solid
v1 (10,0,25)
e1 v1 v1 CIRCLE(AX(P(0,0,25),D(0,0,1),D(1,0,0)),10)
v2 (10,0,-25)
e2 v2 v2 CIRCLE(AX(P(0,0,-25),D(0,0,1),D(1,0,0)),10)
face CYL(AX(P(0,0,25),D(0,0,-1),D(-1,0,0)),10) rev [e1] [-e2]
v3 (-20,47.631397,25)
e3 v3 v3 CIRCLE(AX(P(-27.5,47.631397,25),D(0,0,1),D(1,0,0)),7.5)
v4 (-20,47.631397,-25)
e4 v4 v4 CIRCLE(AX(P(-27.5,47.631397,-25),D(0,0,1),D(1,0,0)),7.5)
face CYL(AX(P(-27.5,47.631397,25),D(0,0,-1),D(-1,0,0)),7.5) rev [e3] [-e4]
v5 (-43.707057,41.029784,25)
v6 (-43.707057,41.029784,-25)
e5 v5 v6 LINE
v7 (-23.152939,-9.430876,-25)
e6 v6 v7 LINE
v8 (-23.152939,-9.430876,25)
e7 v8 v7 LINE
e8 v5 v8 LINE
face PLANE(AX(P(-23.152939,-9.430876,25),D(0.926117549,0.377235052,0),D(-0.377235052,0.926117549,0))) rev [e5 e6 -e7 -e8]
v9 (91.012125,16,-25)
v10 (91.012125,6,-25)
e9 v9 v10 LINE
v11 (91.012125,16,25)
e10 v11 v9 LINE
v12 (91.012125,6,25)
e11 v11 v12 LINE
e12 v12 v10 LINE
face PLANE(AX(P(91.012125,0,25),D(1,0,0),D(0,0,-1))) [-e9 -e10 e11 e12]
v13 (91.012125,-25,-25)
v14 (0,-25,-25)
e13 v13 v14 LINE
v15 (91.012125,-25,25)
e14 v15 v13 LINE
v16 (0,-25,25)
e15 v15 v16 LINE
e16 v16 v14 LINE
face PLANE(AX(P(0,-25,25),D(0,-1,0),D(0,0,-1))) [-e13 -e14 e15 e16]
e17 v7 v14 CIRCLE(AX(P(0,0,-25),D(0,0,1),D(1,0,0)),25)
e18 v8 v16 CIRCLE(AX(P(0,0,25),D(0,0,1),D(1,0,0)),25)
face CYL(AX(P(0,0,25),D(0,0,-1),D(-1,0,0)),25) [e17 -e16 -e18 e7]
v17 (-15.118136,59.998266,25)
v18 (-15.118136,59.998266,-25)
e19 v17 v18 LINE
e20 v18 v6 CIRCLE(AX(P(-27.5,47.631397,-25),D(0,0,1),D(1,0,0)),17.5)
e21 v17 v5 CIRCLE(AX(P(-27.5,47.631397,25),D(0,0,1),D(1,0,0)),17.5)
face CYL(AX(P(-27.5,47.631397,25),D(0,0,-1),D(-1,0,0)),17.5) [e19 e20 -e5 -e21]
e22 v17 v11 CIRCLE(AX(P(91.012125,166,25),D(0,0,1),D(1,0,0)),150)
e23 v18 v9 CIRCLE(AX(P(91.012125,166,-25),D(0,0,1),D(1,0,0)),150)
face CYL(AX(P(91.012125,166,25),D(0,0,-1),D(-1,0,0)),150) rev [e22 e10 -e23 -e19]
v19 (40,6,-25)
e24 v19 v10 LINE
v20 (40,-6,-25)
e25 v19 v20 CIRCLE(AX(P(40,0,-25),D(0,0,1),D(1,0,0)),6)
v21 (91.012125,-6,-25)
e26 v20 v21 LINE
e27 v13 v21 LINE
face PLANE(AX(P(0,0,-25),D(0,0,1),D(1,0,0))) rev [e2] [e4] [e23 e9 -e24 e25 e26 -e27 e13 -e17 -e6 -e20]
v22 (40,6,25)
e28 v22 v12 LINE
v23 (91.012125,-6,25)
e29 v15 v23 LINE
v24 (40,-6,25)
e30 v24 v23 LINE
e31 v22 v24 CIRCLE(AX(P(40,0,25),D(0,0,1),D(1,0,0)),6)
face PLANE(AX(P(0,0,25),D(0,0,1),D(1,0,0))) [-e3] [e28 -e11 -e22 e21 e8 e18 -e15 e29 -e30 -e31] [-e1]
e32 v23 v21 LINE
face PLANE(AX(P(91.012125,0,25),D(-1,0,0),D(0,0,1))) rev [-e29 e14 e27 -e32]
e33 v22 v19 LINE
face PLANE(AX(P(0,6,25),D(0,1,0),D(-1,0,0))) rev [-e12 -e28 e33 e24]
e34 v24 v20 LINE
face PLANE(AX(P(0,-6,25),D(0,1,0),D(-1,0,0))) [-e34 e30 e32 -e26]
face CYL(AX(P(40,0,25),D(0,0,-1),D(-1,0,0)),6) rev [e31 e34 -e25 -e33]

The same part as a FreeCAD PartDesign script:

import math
import FreeCAD as App
import Part
import Sketcher
from FreeCAD import Vector
Q = App.Units.Quantity

doc = App.newDocument("Part")
body = doc.addObject("PartDesign::Body", "Body")

# Sketch on XY plane
sketch1 = body.newObject("Sketcher::SketchObject", "Sketch")
sketch1.AttachmentSupport = (doc.getObject("XY_Plane"), [""])
sketch1.MapMode = "FlatFace"
sketch1.addGeometry([
    Part.ArcOfCircle(Part.Circle(Vector(40, 0, 0), Vector(0, 0, 1), 6), math.radians(90), math.radians(270)),  # 0
    Part.LineSegment(Vector(40, 6, 0), Vector(91, 6, 0)),  # 1
    Part.LineSegment(Vector(91, 6, 0), Vector(91, 16, 0)),  # 2
    Part.ArcOfCircle(Part.Circle(Vector(91, 166, 0), Vector(0, 0, 1), 150), math.radians(-135), math.radians(-90)),  # 3
    Part.ArcOfCircle(Part.Circle(Vector(-28, 48, 0), Vector(0, 0, 1), 18), math.radians(45), math.radians(202)),  # 4
    Part.LineSegment(Vector(-44, 41, 0), Vector(-23, -9, 0)),  # 5
    Part.ArcOfCircle(Part.Circle(Vector(0, 0, 0), Vector(0, 0, 1), 25), math.radians(-158), math.radians(-90)),  # 6
    Part.LineSegment(Vector(0, -25, 0), Vector(91, -25, 0)),  # 7
    Part.LineSegment(Vector(91, -25, 0), Vector(91, -6, 0)),  # 8
    Part.LineSegment(Vector(91, -6, 0), Vector(40, -6, 0)),  # 9
    Part.Circle(Vector(0, 0, 0), Vector(0, 0, 1), 10),  # 10
    Part.Circle(Vector(-28, 48, 0), Vector(0, 0, 1), 8),  # 11
], False)
sketch1.addConstraint([
    Sketcher.Constraint("Tangent", 0, 1, 1, 1),
    Sketcher.Constraint("Coincident", 1, 2, 2, 1),
    Sketcher.Constraint("Coincident", 2, 2, 3, 2),
    Sketcher.Constraint("Tangent", 3, 1, 4, 1),
    Sketcher.Constraint("Tangent", 4, 2, 5, 1),
    Sketcher.Constraint("Tangent", 5, 2, 6, 1),
    Sketcher.Constraint("Tangent", 6, 2, 7, 1),
    Sketcher.Constraint("Coincident", 7, 2, 8, 1),
    Sketcher.Constraint("Coincident", 8, 2, 9, 1),
    Sketcher.Constraint("Tangent", 9, 2, 0, 2),
    Sketcher.Constraint("Horizontal", 1),
    Sketcher.Constraint("Vertical", 2),
    Sketcher.Constraint("Horizontal", 7),
    Sketcher.Constraint("Vertical", 8),
    Sketcher.Constraint("Horizontal", 9),
    Sketcher.Constraint("Coincident", 6, 3, -1, 1),
    Sketcher.Constraint("Coincident", 10, 3, -1, 1),
    Sketcher.Constraint("Coincident", 11, 3, 4, 3),
    Sketcher.Constraint("Symmetric", 1, 2, 8, 2, -1),
    Sketcher.Constraint("Vertical", 3, 3, 1, 2),
    Sketcher.Constraint("Diameter", 10, Q("20 mm")),
    Sketcher.Constraint("Diameter", 11, Q("15 mm")),
    Sketcher.Constraint("Radius", 0, Q("6 mm")),
    Sketcher.Constraint("Radius", 3, Q("150 mm")),
    Sketcher.Constraint("Radius", 6, Q("25 mm")),
    Sketcher.Constraint("Radius", 4, Q("17.5 mm")),
    Sketcher.Constraint("DistanceY", 2, 1, 2, 2, Q("10 mm")),
    Sketcher.Constraint("DistanceX", -1, 1, 0, 3, Q("40 mm")),
    Sketcher.Constraint("DistanceX", 4, 3, -1, 1, Q("27.5 mm")),
    Sketcher.Constraint("DistanceX", 1, 1, 1, 2, Q("51.012125 mm")),
])
pad1 = body.newObject("PartDesign::Pad", "Pad")
pad1.Profile = sketch1
pad1.Length = 50
pad1.Midplane = True

doc.recompute()
